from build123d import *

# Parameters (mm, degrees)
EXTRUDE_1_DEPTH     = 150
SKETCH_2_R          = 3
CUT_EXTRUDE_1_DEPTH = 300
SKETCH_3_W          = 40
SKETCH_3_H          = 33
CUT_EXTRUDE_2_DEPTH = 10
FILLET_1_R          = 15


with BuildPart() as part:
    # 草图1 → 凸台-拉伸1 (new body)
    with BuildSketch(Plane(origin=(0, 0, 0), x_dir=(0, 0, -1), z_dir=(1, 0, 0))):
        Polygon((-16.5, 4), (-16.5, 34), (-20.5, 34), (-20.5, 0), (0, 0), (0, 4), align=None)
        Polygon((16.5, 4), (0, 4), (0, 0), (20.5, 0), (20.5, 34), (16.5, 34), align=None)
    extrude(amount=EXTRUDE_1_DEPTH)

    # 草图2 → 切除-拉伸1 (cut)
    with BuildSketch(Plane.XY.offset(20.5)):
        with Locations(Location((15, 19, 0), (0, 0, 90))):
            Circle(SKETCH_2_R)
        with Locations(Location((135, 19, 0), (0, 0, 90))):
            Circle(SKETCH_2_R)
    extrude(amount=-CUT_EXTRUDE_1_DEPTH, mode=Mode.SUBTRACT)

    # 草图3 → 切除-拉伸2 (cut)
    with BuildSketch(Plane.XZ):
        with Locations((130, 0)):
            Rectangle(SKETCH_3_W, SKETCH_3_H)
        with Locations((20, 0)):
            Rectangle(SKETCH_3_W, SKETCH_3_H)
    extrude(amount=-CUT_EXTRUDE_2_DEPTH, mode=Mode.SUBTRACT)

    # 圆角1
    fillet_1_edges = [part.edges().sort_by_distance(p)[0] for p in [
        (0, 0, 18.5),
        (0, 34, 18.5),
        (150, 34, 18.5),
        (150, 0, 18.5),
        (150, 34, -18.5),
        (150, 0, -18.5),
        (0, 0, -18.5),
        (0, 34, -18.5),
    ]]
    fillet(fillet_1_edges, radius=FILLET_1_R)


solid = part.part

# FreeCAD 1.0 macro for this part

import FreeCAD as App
import Part
import Sketcher

V = App.Vector
Q = App.Units.Quantity


def edges_at(feature, points):
    """Names of the edges that pass closest to the given points."""
    edges = feature.Shape.Edges
    near = lambda p: min(range(len(edges)), key=lambda i: edges[i].distToShape(Part.Vertex(*p))[0])
    return sorted({f"Edge{near(p) + 1}" for p in points})

doc = App.newDocument("Part")
body = doc.addObject("PartDesign::Body", "Body")

# Sketch on YZ plane
sketch1 = body.newObject("Sketcher::SketchObject", "Sketch")
sketch1.AttachmentSupport = (doc.getObject("YZ_Plane"), [""])
sketch1.MapMode = "FlatFace"
sketch1.addGeometry(Part.LineSegment(V(4, 16.5, 0), V(34, 16.5, 0)), False)
sketch1.addGeometry(Part.LineSegment(V(34, 16.5, 0), V(34, 20.5, 0)), False)
sketch1.addGeometry(Part.LineSegment(V(34, 20.5, 0), V(0, 20.5, 0)), False)
sketch1.addGeometry(Part.LineSegment(V(0, 20.5, 0), V(0, -20.5, 0)), False)
sketch1.addGeometry(Part.LineSegment(V(0, -20.5, 0), V(34, -20.5, 0)), False)
sketch1.addGeometry(Part.LineSegment(V(34, -20.5, 0), V(34, -16.5, 0)), False)
sketch1.addGeometry(Part.LineSegment(V(34, -16.5, 0), V(4, -16.5, 0)), False)
sketch1.addGeometry(Part.LineSegment(V(4, -16.5, 0), V(4, 16.5, 0)), False)
sketch1.addConstraint(Sketcher.Constraint("Coincident", 0, 2, 1, 1))
sketch1.addConstraint(Sketcher.Constraint("Coincident", 1, 2, 2, 1))
sketch1.addConstraint(Sketcher.Constraint("Coincident", 2, 2, 3, 1))
sketch1.addConstraint(Sketcher.Constraint("Coincident", 3, 2, 4, 1))
sketch1.addConstraint(Sketcher.Constraint("Coincident", 4, 2, 5, 1))
sketch1.addConstraint(Sketcher.Constraint("Coincident", 5, 2, 6, 1))
sketch1.addConstraint(Sketcher.Constraint("Coincident", 6, 2, 7, 1))
sketch1.addConstraint(Sketcher.Constraint("Coincident", 7, 2, 0, 1))
sketch1.addConstraint(Sketcher.Constraint("Horizontal", 0))
sketch1.addConstraint(Sketcher.Constraint("Vertical", 1))
sketch1.addConstraint(Sketcher.Constraint("Horizontal", 2))
sketch1.addConstraint(Sketcher.Constraint("Vertical", 3))
sketch1.addConstraint(Sketcher.Constraint("Horizontal", 4))
sketch1.addConstraint(Sketcher.Constraint("Vertical", 5))
sketch1.addConstraint(Sketcher.Constraint("Horizontal", 6))
sketch1.addConstraint(Sketcher.Constraint("Vertical", 7))
sketch1.addConstraint(Sketcher.Constraint("Symmetric", 2, 2, 3, 2, -1, 1))
sketch1.addConstraint(Sketcher.Constraint("Symmetric", 0, 2, 5, 2, -1))
sketch1.addConstraint(Sketcher.Constraint("DistanceX", 0, 1, 0, 2, Q("30 mm")))
sketch1.addConstraint(Sketcher.Constraint("DistanceX", 2, 2, 2, 1, Q("34 mm")))
sketch1.addConstraint(Sketcher.Constraint("DistanceY", 1, 1, 1, 2, Q("4 mm")))
sketch1.addConstraint(Sketcher.Constraint("DistanceY", 3, 2, 3, 1, Q("41 mm")))
pad1 = body.newObject("PartDesign::Pad", "Pad")
pad1.Profile = sketch1
pad1.Length = 150

# Sketch on XY plane
sketch2 = body.newObject("Sketcher::SketchObject", "Sketch001")
sketch2.AttachmentSupport = (doc.getObject("XY_Plane"), [""])
sketch2.MapMode = "FlatFace"
sketch2.AttachmentOffset = App.Placement(V(0, 0, 20.5), App.Rotation())
sketch2.addGeometry(Part.Circle(V(15, 19, 0), V(0, 0, 1), 3), False)
sketch2.addGeometry(Part.Circle(V(135, 19, 0), V(0, 0, 1), 3), False)
sketch2.addConstraint(Sketcher.Constraint("Equal", 0, 1))
sketch2.addConstraint(Sketcher.Constraint("Horizontal", 0, 3, 1, 3))
sketch2.addConstraint(Sketcher.Constraint("Diameter", 0, Q("6 mm")))
sketch2.addConstraint(Sketcher.Constraint("DistanceX", -1, 1, 0, 3, Q("15 mm")))
sketch2.addConstraint(Sketcher.Constraint("DistanceY", -1, 1, 0, 3, Q("19 mm")))
sketch2.addConstraint(Sketcher.Constraint("DistanceX", -1, 1, 1, 3, Q("135 mm")))
pocket1 = body.newObject("PartDesign::Pocket", "Pocket")
pocket1.Profile = sketch2
pocket1.Length = 300

# Sketch on XZ plane
sketch3 = body.newObject("Sketcher::SketchObject", "Sketch002")
sketch3.AttachmentSupport = (doc.getObject("XZ_Plane"), [""])
sketch3.MapMode = "FlatFace"
sketch3.addGeometry(Part.LineSegment(V(110, 16.5, 0), V(110, -16.5, 0)), False)
sketch3.addGeometry(Part.LineSegment(V(110, -16.5, 0), V(150, -16.5, 0)), False)
sketch3.addGeometry(Part.LineSegment(V(150, -16.5, 0), V(150, 16.5, 0)), False)
sketch3.addGeometry(Part.LineSegment(V(150, 16.5, 0), V(110, 16.5, 0)), False)
sketch3.addGeometry(Part.LineSegment(V(0, 16.5, 0), V(0, -16.5, 0)), False)
sketch3.addGeometry(Part.LineSegment(V(0, -16.5, 0), V(40, -16.5, 0)), False)
sketch3.addGeometry(Part.LineSegment(V(40, -16.5, 0), V(40, 16.5, 0)), False)
sketch3.addGeometry(Part.LineSegment(V(40, 16.5, 0), V(0, 16.5, 0)), False)
sketch3.addConstraint(Sketcher.Constraint("Coincident", 0, 2, 1, 1))
sketch3.addConstraint(Sketcher.Constraint("Coincident", 1, 2, 2, 1))
sketch3.addConstraint(Sketcher.Constraint("Coincident", 2, 2, 3, 1))
sketch3.addConstraint(Sketcher.Constraint("Coincident", 3, 2, 0, 1))
sketch3.addConstraint(Sketcher.Constraint("Coincident", 4, 2, 5, 1))
sketch3.addConstraint(Sketcher.Constraint("Coincident", 5, 2, 6, 1))
sketch3.addConstraint(Sketcher.Constraint("Coincident", 6, 2, 7, 1))
sketch3.addConstraint(Sketcher.Constraint("Coincident", 7, 2, 4, 1))
sketch3.addConstraint(Sketcher.Constraint("Vertical", 0))
sketch3.addConstraint(Sketcher.Constraint("Horizontal", 1))
sketch3.addConstraint(Sketcher.Constraint("Vertical", 2))
sketch3.addConstraint(Sketcher.Constraint("Horizontal", 3))
sketch3.addConstraint(Sketcher.Constraint("Vertical", 4))
sketch3.addConstraint(Sketcher.Constraint("Horizontal", 5))
sketch3.addConstraint(Sketcher.Constraint("Vertical", 6))
sketch3.addConstraint(Sketcher.Constraint("Horizontal", 7))
sketch3.addConstraint(Sketcher.Constraint("Symmetric", 4, 2, 7, 2, -1, 1))
sketch3.addConstraint(Sketcher.Constraint("Horizontal", 1, 2, 4, 2))
sketch3.addConstraint(Sketcher.Constraint("Horizontal", 3, 2, 6, 2))
sketch3.addConstraint(Sketcher.Constraint("Equal", 3, 5))
sketch3.addConstraint(Sketcher.Constraint("DistanceX", 1, 1, 1, 2, Q("40 mm")))
sketch3.addConstraint(Sketcher.Constraint("DistanceY", 0, 2, 0, 1, Q("33 mm")))
sketch3.addConstraint(Sketcher.Constraint("DistanceX", -1, 1, 0, 2, Q("110 mm")))
pocket2 = body.newObject("PartDesign::Pocket", "Pocket001")
pocket2.Profile = sketch3
pocket2.Length = 10
doc.recompute()

fillet = body.newObject("PartDesign::Fillet", "Fillet")
fillet.Base = (pocket2, edges_at(pocket2, [
    (0, 0, 18.5),
    (0, 34, 18.5),
    (150, 34, 18.5),
    (150, 0, 18.5),
    (150, 34, -18.5),
    (150, 0, -18.5),
    (0, 0, -18.5),
    (0, 34, -18.5),
]))
fillet.Radius = 15

doc.recompute()
